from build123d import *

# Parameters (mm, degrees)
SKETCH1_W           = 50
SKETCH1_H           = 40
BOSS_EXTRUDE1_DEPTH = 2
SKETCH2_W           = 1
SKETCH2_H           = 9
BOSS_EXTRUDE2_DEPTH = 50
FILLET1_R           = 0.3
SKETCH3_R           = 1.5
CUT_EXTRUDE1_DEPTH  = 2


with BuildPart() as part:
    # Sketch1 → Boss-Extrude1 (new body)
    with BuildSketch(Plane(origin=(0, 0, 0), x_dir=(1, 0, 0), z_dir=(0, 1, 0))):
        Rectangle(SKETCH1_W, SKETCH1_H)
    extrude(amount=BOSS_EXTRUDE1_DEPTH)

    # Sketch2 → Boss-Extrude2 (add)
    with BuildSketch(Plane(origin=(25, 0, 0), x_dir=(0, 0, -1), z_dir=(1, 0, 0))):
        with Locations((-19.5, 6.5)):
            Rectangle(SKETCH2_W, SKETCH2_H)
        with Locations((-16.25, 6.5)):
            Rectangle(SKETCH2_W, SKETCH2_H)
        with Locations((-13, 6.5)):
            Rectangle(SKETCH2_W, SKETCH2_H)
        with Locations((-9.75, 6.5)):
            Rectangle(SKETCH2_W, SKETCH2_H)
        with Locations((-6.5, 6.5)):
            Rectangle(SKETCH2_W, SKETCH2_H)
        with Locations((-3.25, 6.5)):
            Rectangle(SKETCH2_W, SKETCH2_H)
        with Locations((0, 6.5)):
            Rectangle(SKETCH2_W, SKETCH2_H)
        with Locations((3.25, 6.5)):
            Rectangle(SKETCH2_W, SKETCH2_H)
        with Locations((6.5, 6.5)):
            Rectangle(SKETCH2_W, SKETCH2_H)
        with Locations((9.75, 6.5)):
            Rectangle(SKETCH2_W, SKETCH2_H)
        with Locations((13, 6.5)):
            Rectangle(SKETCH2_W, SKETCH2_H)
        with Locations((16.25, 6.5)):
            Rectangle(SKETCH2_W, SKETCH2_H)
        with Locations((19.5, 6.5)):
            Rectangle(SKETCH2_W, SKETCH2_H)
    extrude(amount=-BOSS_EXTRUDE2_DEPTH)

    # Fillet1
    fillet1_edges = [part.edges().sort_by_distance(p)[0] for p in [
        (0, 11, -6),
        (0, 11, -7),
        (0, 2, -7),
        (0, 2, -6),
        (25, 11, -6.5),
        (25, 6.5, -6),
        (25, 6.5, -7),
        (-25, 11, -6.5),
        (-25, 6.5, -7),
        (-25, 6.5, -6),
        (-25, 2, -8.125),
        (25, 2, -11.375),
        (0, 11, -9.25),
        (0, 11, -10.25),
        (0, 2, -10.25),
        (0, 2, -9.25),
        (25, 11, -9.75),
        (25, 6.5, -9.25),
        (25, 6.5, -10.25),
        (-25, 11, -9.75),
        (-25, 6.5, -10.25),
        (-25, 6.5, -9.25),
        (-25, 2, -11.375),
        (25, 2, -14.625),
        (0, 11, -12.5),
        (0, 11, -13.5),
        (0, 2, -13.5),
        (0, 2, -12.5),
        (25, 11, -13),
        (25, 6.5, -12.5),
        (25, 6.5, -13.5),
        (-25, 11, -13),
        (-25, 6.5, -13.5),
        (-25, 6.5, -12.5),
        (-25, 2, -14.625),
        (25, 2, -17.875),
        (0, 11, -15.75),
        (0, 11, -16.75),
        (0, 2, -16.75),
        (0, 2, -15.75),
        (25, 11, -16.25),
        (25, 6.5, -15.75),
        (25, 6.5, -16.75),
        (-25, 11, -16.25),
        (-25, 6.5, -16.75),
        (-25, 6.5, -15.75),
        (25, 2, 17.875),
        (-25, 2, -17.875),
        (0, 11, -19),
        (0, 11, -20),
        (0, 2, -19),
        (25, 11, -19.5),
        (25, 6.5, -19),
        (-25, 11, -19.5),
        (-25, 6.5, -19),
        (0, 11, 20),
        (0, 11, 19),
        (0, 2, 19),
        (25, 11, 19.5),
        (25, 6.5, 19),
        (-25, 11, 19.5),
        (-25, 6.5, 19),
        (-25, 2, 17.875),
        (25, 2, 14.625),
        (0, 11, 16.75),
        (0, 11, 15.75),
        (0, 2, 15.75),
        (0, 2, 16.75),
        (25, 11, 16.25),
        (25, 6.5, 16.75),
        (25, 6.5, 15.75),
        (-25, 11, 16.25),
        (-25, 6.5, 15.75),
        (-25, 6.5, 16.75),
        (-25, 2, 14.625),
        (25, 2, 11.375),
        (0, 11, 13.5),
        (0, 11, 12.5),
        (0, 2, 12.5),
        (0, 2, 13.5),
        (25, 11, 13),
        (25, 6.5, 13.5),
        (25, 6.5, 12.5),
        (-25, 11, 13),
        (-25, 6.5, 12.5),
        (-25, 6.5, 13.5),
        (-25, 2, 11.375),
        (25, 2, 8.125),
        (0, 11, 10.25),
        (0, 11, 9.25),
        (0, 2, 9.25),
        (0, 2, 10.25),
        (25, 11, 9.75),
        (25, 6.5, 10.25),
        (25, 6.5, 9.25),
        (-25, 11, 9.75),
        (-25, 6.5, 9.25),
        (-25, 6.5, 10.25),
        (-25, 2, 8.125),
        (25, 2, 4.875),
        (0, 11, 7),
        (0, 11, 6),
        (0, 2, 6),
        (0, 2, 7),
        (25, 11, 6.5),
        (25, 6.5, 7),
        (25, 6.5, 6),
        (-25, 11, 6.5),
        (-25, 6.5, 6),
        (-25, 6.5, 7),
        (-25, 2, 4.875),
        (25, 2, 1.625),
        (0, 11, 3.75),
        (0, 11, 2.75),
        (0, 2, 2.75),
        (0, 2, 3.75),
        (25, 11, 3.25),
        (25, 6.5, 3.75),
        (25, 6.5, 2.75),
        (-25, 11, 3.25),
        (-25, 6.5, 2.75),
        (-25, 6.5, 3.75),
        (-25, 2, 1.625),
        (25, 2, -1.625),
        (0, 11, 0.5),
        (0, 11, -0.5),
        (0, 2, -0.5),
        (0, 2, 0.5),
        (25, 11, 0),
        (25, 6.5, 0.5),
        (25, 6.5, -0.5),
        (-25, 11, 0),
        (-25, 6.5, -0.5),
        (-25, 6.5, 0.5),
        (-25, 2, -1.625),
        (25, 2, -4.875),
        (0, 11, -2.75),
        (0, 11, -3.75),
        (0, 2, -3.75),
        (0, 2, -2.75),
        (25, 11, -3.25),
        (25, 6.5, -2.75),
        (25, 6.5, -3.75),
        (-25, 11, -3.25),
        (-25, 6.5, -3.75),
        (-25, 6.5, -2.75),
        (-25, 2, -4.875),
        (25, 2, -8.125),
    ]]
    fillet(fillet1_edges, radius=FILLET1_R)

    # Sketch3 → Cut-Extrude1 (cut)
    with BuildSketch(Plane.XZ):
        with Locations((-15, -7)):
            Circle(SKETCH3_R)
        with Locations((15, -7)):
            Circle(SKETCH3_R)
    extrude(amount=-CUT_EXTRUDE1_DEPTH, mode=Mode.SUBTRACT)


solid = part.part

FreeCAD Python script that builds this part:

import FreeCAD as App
import Part
import Sketcher
from FreeCAD import Vector
Q = App.Units.Quantity


def edges_at(feature, points):
    """Names of the edges that pass closest to the given points."""
    edges = feature.Shape.Edges
    near = lambda p: min(range(len(edges)), key=lambda i: edges[i].distToShape(Part.Vertex(*p))[0])
    return sorted({f"Edge{near(p) + 1}" for p in points})

doc = App.newDocument("Part")
body = doc.addObject("PartDesign::Body", "Body")

# Sketch on XZ plane
sketch1 = body.newObject("Sketcher::SketchObject", "Sketch")
sketch1.AttachmentSupport = (doc.getObject("XZ_Plane"), [""])
sketch1.MapMode = "FlatFace"
sketch1.addGeometry([
    Part.LineSegment(Vector(-25, -20, 0), Vector(-25, 20, 0)),
    Part.LineSegment(Vector(-25, 20, 0), Vector(25, 20, 0)),
    Part.LineSegment(Vector(25, 20, 0), Vector(25, -20, 0)),
    Part.LineSegment(Vector(25, -20, 0), Vector(-25, -20, 0)),
], False)
sketch1.addConstraint([
    Sketcher.Constraint("Coincident", 0, 2, 1, 1),
    Sketcher.Constraint("Coincident", 1, 2, 2, 1),
    Sketcher.Constraint("Coincident", 2, 2, 3, 1),
    Sketcher.Constraint("Coincident", 3, 2, 0, 1),
    Sketcher.Constraint("Vertical", 0),
    Sketcher.Constraint("Horizontal", 1),
    Sketcher.Constraint("Vertical", 2),
    Sketcher.Constraint("Horizontal", 3),
    Sketcher.Constraint("Symmetric", 0, 2, 2, 2, -1, 1),
    Sketcher.Constraint("DistanceX", 1, 1, 1, 2, Q("50 mm")),
    Sketcher.Constraint("DistanceY", 0, 1, 0, 2, Q("40 mm")),
])
pad1 = body.newObject("PartDesign::Pad", "Pad")
pad1.Profile = sketch1
pad1.Length = 2
pad1.Reversed = True

# Sketch on YZ plane
sketch2 = body.newObject("Sketcher::SketchObject", "Sketch001")
sketch2.AttachmentSupport = (doc.getObject("YZ_Plane"), [""])
sketch2.MapMode = "FlatFace"
sketch2.AttachmentOffset = App.Placement(Vector(0, 0, 25), App.Rotation())
sketch2.addGeometry([
    Part.LineSegment(Vector(11, 20, 0), Vector(2, 20, 0)),  # 0
    Part.LineSegment(Vector(2, 20, 0), Vector(2, 19, 0)),  # 1
    Part.LineSegment(Vector(2, 19, 0), Vector(11, 19, 0)),  # 2
    Part.LineSegment(Vector(11, 19, 0), Vector(11, 20, 0)),  # 3
    Part.LineSegment(Vector(11, 16.75, 0), Vector(2, 16.75, 0)),  # 4
    Part.LineSegment(Vector(2, 16.75, 0), Vector(2, 15.75, 0)),  # 5
    Part.LineSegment(Vector(2, 15.75, 0), Vector(11, 15.75, 0)),  # 6
    Part.LineSegment(Vector(11, 15.75, 0), Vector(11, 16.75, 0)),  # 7
    Part.LineSegment(Vector(11, 13.5, 0), Vector(2, 13.5, 0)),  # 8
    Part.LineSegment(Vector(2, 13.5, 0), Vector(2, 12.5, 0)),  # 9
    Part.LineSegment(Vector(2, 12.5, 0), Vector(11, 12.5, 0)),  # 10
    Part.LineSegment(Vector(11, 12.5, 0), Vector(11, 13.5, 0)),  # 11
    Part.LineSegment(Vector(11, 10.25, 0), Vector(2, 10.25, 0)),  # 12
    Part.LineSegment(Vector(2, 10.25, 0), Vector(2, 9.25, 0)),  # 13
    Part.LineSegment(Vector(2, 9.25, 0), Vector(11, 9.25, 0)),  # 14
    Part.LineSegment(Vector(11, 9.25, 0), Vector(11, 10.25, 0)),  # 15
    Part.LineSegment(Vector(11, 7, 0), Vector(2, 7, 0)),  # 16
    Part.LineSegment(Vector(2, 7, 0), Vector(2, 6, 0)),  # 17
    Part.LineSegment(Vector(2, 6, 0), Vector(11, 6, 0)),  # 18
    Part.LineSegment(Vector(11, 6, 0), Vector(11, 7, 0)),  # 19
    Part.LineSegment(Vector(11, 3.75, 0), Vector(2, 3.75, 0)),  # 20
    Part.LineSegment(Vector(2, 3.75, 0), Vector(2, 2.75, 0)),  # 21
    Part.LineSegment(Vector(2, 2.75, 0), Vector(11, 2.75, 0)),  # 22
    Part.LineSegment(Vector(11, 2.75, 0), Vector(11, 3.75, 0)),  # 23
    Part.LineSegment(Vector(11, 0.5, 0), Vector(2, 0.5, 0)),  # 24
    Part.LineSegment(Vector(2, 0.5, 0), Vector(2, -0.5, 0)),  # 25
    Part.LineSegment(Vector(2, -0.5, 0), Vector(11, -0.5, 0)),  # 26
    Part.LineSegment(Vector(11, -0.5, 0), Vector(11, 0.5, 0)),  # 27
    Part.LineSegment(Vector(11, -2.75, 0), Vector(2, -2.75, 0)),  # 28
    Part.LineSegment(Vector(2, -2.75, 0), Vector(2, -3.75, 0)),  # 29
    Part.LineSegment(Vector(2, -3.75, 0), Vector(11, -3.75, 0)),  # 30
    Part.LineSegment(Vector(11, -3.75, 0), Vector(11, -2.75, 0)),  # 31
    Part.LineSegment(Vector(11, -6, 0), Vector(2, -6, 0)),  # 32
    Part.LineSegment(Vector(2, -6, 0), Vector(2, -7, 0)),  # 33
    Part.LineSegment(Vector(2, -7, 0), Vector(11, -7, 0)),  # 34
    Part.LineSegment(Vector(11, -7, 0), Vector(11, -6, 0)),  # 35
    Part.LineSegment(Vector(11, -9.25, 0), Vector(2, -9.25, 0)),  # 36
    Part.LineSegment(Vector(2, -9.25, 0), Vector(2, -10.25, 0)),  # 37
    Part.LineSegment(Vector(2, -10.25, 0), Vector(11, -10.25, 0)),  # 38
    Part.LineSegment(Vector(11, -10.25, 0), Vector(11, -9.25, 0)),  # 39
    Part.LineSegment(Vector(11, -12.5, 0), Vector(2, -12.5, 0)),  # 40
    Part.LineSegment(Vector(2, -12.5, 0), Vector(2, -13.5, 0)),  # 41
    Part.LineSegment(Vector(2, -13.5, 0), Vector(11, -13.5, 0)),  # 42
    Part.LineSegment(Vector(11, -13.5, 0), Vector(11, -12.5, 0)),  # 43
    Part.LineSegment(Vector(11, -15.75, 0), Vector(2, -15.75, 0)),  # 44
    Part.LineSegment(Vector(2, -15.75, 0), Vector(2, -16.75, 0)),  # 45
    Part.LineSegment(Vector(2, -16.75, 0), Vector(11, -16.75, 0)),  # 46
    Part.LineSegment(Vector(11, -16.75, 0), Vector(11, -15.75, 0)),  # 47
    Part.LineSegment(Vector(11, -19, 0), Vector(2, -19, 0)),  # 48
    Part.LineSegment(Vector(2, -19, 0), Vector(2, -20, 0)),  # 49
    Part.LineSegment(Vector(2, -20, 0), Vector(11, -20, 0)),  # 50
    Part.LineSegment(Vector(11, -20, 0), Vector(11, -19, 0)),  # 51
], False)
sketch2.addConstraint([
    Sketcher.Constraint("Coincident", 0, 2, 1, 1),
    Sketcher.Constraint("Coincident", 1, 2, 2, 1),
    Sketcher.Constraint("Coincident", 2, 2, 3, 1),
    Sketcher.Constraint("Coincident", 3, 2, 0, 1),
    Sketcher.Constraint("Coincident", 4, 2, 5, 1),
    Sketcher.Constraint("Coincident", 5, 2, 6, 1),
    Sketcher.Constraint("Coincident", 6, 2, 7, 1),
    Sketcher.Constraint("Coincident", 7, 2, 4, 1),
    Sketcher.Constraint("Coincident", 8, 2, 9, 1),
    Sketcher.Constraint("Coincident", 9, 2, 10, 1),
    Sketcher.Constraint("Coincident", 10, 2, 11, 1),
    Sketcher.Constraint("Coincident", 11, 2, 8, 1),
    Sketcher.Constraint("Coincident", 12, 2, 13, 1),
    Sketcher.Constraint("Coincident", 13, 2, 14, 1),
    Sketcher.Constraint("Coincident", 14, 2, 15, 1),
    Sketcher.Constraint("Coincident", 15, 2, 12, 1),
    Sketcher.Constraint("Coincident", 16, 2, 17, 1),
    Sketcher.Constraint("Coincident", 17, 2, 18, 1),
    Sketcher.Constraint("Coincident", 18, 2, 19, 1),
    Sketcher.Constraint("Coincident", 19, 2, 16, 1),
    Sketcher.Constraint("Coincident", 20, 2, 21, 1),
    Sketcher.Constraint("Coincident", 21, 2, 22, 1),
    Sketcher.Constraint("Coincident", 22, 2, 23, 1),
    Sketcher.Constraint("Coincident", 23, 2, 20, 1),
    Sketcher.Constraint("Coincident", 24, 2, 25, 1),
    Sketcher.Constraint("Coincident", 25, 2, 26, 1),
    Sketcher.Constraint("Coincident", 26, 2, 27, 1),
    Sketcher.Constraint("Coincident", 27, 2, 24, 1),
    Sketcher.Constraint("Coincident", 28, 2, 29, 1),
    Sketcher.Constraint("Coincident", 29, 2, 30, 1),
    Sketcher.Constraint("Coincident", 30, 2, 31, 1),
    Sketcher.Constraint("Coincident", 31, 2, 28, 1),
    Sketcher.Constraint("Coincident", 32, 2, 33, 1),
    Sketcher.Constraint("Coincident", 33, 2, 34, 1),
    Sketcher.Constraint("Coincident", 34, 2, 35, 1),
    Sketcher.Constraint("Coincident", 35, 2, 32, 1),
    Sketcher.Constraint("Coincident", 36, 2, 37, 1),
    Sketcher.Constraint("Coincident", 37, 2, 38, 1),
    Sketcher.Constraint("Coincident", 38, 2, 39, 1),
    Sketcher.Constraint("Coincident", 39, 2, 36, 1),
    Sketcher.Constraint("Coincident", 40, 2, 41, 1),
    Sketcher.Constraint("Coincident", 41, 2, 42, 1),
    Sketcher.Constraint("Coincident", 42, 2, 43, 1),
    Sketcher.Constraint("Coincident", 43, 2, 40, 1),
    Sketcher.Constraint("Coincident", 44, 2, 45, 1),
    Sketcher.Constraint("Coincident", 45, 2, 46, 1),
    Sketcher.Constraint("Coincident", 46, 2, 47, 1),
    Sketcher.Constraint("Coincident", 47, 2, 44, 1),
    Sketcher.Constraint("Coincident", 48, 2, 49, 1),
    Sketcher.Constraint("Coincident", 49, 2, 50, 1),
    Sketcher.Constraint("Coincident", 50, 2, 51, 1),
    Sketcher.Constraint("Coincident", 51, 2, 48, 1),
    Sketcher.Constraint("Horizontal", 0),
    Sketcher.Constraint("Vertical", 1),
    Sketcher.Constraint("Horizontal", 2),
    Sketcher.Constraint("Vertical", 3),
    Sketcher.Constraint("Horizontal", 4),
    Sketcher.Constraint("Vertical", 5),
    Sketcher.Constraint("Horizontal", 6),
    Sketcher.Constraint("Vertical", 7),
    Sketcher.Constraint("Horizontal", 8),
    Sketcher.Constraint("Vertical", 9),
    Sketcher.Constraint("Horizontal", 10),
    Sketcher.Constraint("Vertical", 11),
    Sketcher.Constraint("Horizontal", 12),
    Sketcher.Constraint("Vertical", 13),
    Sketcher.Constraint("Horizontal", 14),
    Sketcher.Constraint("Vertical", 15),
    Sketcher.Constraint("Horizontal", 16),
    Sketcher.Constraint("Vertical", 17),
    Sketcher.Constraint("Horizontal", 18),
    Sketcher.Constraint("Vertical", 19),
    Sketcher.Constraint("Horizontal", 20),
    Sketcher.Constraint("Vertical", 21),
    Sketcher.Constraint("Horizontal", 22),
    Sketcher.Constraint("Vertical", 23),
    Sketcher.Constraint("Horizontal", 24),
    Sketcher.Constraint("Vertical", 25),
    Sketcher.Constraint("Horizontal", 26),
    Sketcher.Constraint("Vertical", 27),
    Sketcher.Constraint("Horizontal", 28),
    Sketcher.Constraint("Vertical", 29),
    Sketcher.Constraint("Horizontal", 30),
    Sketcher.Constraint("Vertical", 31),
    Sketcher.Constraint("Horizontal", 32),
    Sketcher.Constraint("Vertical", 33),
    Sketcher.Constraint("Horizontal", 34),
    Sketcher.Constraint("Vertical", 35),
    Sketcher.Constraint("Horizontal", 36),
    Sketcher.Constraint("Vertical", 37),
    Sketcher.Constraint("Horizontal", 38),
    Sketcher.Constraint("Vertical", 39),
    Sketcher.Constraint("Horizontal", 40),
    Sketcher.Constraint("Vertical", 41),
    Sketcher.Constraint("Horizontal", 42),
    Sketcher.Constraint("Vertical", 43),
    Sketcher.Constraint("Horizontal", 44),
    Sketcher.Constraint("Vertical", 45),
    Sketcher.Constraint("Horizontal", 46),
    Sketcher.Constraint("Vertical", 47),
    Sketcher.Constraint("Horizontal", 48),
    Sketcher.Constraint("Vertical", 49),
    Sketcher.Constraint("Horizontal", 50),
    Sketcher.Constraint("Vertical", 51),
    Sketcher.Constraint("Symmetric", 21, 2, 28, 2, -1),
    Sketcher.Constraint("Symmetric", 23, 2, 30, 2, -1),
    Sketcher.Constraint("Symmetric", 17, 2, 32, 2, -1),
    Sketcher.Constraint("Symmetric", 19, 2, 34, 2, -1),
    Sketcher.Constraint("Symmetric", 13, 2, 36, 2, -1),
    Sketcher.Constraint("Symmetric", 15, 2, 38, 2, -1),
    Sketcher.Constraint("Symmetric", 9, 2, 40, 2, -1),
    Sketcher.Constraint("Symmetric", 11, 2, 42, 2, -1),
    Sketcher.Constraint("Symmetric", 5, 2, 44, 2, -1),
    Sketcher.Constraint("Symmetric", 7, 2, 46, 2, -1),
    Sketcher.Constraint("Symmetric", 1, 2, 48, 2, -1),
    Sketcher.Constraint("Symmetric", 3, 2, 50, 2, -1),
    Sketcher.Constraint("Vertical", 1, 2, 4, 2),
    Sketcher.Constraint("Vertical", 3, 2, 6, 2),
    Sketcher.Constraint("Vertical", 5, 2, 8, 2),
    Sketcher.Constraint("Vertical", 7, 2, 10, 2),
    Sketcher.Constraint("Vertical", 9, 2, 12, 2),
    Sketcher.Constraint("Vertical", 11, 2, 14, 2),
    Sketcher.Constraint("Vertical", 13, 2, 16, 2),
    Sketcher.Constraint("Vertical", 15, 2, 18, 2),
    Sketcher.Constraint("Vertical", 17, 2, 20, 2),
    Sketcher.Constraint("Vertical", 19, 2, 22, 2),
    Sketcher.Constraint("Vertical", 21, 2, 24, 2),
    Sketcher.Constraint("Vertical", 23, 2, 26, 2),
    Sketcher.Constraint("Equal", 3, 5),
    Sketcher.Constraint("Equal", 7, 9),
    Sketcher.Constraint("Equal", 11, 13),
    Sketcher.Constraint("Equal", 15, 17),
    Sketcher.Constraint("Equal", 19, 21),
    Sketcher.Constraint("Equal", 23, 25),
    Sketcher.Constraint("DistanceX", 0, 2, 0, 1, Q("9 mm")),
    Sketcher.Constraint("DistanceY", 1, 2, 1, 1, Q("1 mm")),
    Sketcher.Constraint("DistanceX", -1, 1, 0, 2, Q("2 mm")),
    Sketcher.Constraint("DistanceY", -1, 1, 0, 2, Q("20 mm")),
    Sketcher.Constraint("DistanceY", -1, 1, 16, 2, Q("7 mm")),
    Sketcher.Constraint("DistanceY", -1, 1, 8, 2, Q("13.5 mm")),
    Sketcher.Constraint("DistanceY", -1, 1, 24, 2, Q("0.5 mm")),
    Sketcher.Constraint("DistanceY", 12, 2, 5, 2, Q("5.5 mm")),
    Sketcher.Constraint("DistanceY", 20, 2, 13, 2, Q("5.5 mm")),
    Sketcher.Constraint("DistanceY", 28, 2, 21, 2, Q("5.5 mm")),
])
pad2 = body.newObject("PartDesign::Pad", "Pad001")
pad2.Profile = sketch2
pad2.Length = 50
pad2.Reversed = True
doc.recompute()

fillet = body.newObject("PartDesign::Fillet", "Fillet")
fillet.Base = (pad2, edges_at(pad2, [
    (0, 11, -6),
    (0, 11, -7),
    (0, 2, -7),
    (0, 2, -6),
    (25, 11, -6.5),
    (25, 6.5, -6),
    (25, 6.5, -7),
    (-25, 11, -6.5),
    (-25, 6.5, -7),
    (-25, 6.5, -6),
    (-25, 2, -8.125),
    (25, 2, -11.375),
    (0, 11, -9.25),
    (0, 11, -10.25),
    (0, 2, -10.25),
    (0, 2, -9.25),
    (25, 11, -9.75),
    (25, 6.5, -9.25),
    (25, 6.5, -10.25),
    (-25, 11, -9.75),
    (-25, 6.5, -10.25),
    (-25, 6.5, -9.25),
    (-25, 2, -11.375),
    (25, 2, -14.625),
    (0, 11, -12.5),
    (0, 11, -13.5),
    (0, 2, -13.5),
    (0, 2, -12.5),
    (25, 11, -13),
    (25, 6.5, -12.5),
    (25, 6.5, -13.5),
    (-25, 11, -13),
    (-25, 6.5, -13.5),
    (-25, 6.5, -12.5),
    (-25, 2, -14.625),
    (25, 2, -17.875),
    (0, 11, -15.75),
    (0, 11, -16.75),
    (0, 2, -16.75),
    (0, 2, -15.75),
    (25, 11, -16.25),
    (25, 6.5, -15.75),
    (25, 6.5, -16.75),
    (-25, 11, -16.25),
    (-25, 6.5, -16.75),
    (-25, 6.5, -15.75),
    (25, 2, 17.875),
    (-25, 2, -17.875),
    (0, 11, -19),
    (0, 11, -20),
    (0, 2, -19),
    (25, 11, -19.5),
    (25, 6.5, -19),
    (-25, 11, -19.5),
    (-25, 6.5, -19),
    (0, 11, 20),
    (0, 11, 19),
    (0, 2, 19),
    (25, 11, 19.5),
    (25, 6.5, 19),
    (-25, 11, 19.5),
    (-25, 6.5, 19),
    (-25, 2, 17.875),
    (25, 2, 14.625),
    (0, 11, 16.75),
    (0, 11, 15.75),
    (0, 2, 15.75),
    (0, 2, 16.75),
    (25, 11, 16.25),
    (25, 6.5, 16.75),
    (25, 6.5, 15.75),
    (-25, 11, 16.25),
    (-25, 6.5, 15.75),
    (-25, 6.5, 16.75),
    (-25, 2, 14.625),
    (25, 2, 11.375),
    (0, 11, 13.5),
    (0, 11, 12.5),
    (0, 2, 12.5),
    (0, 2, 13.5),
    (25, 11, 13),
    (25, 6.5, 13.5),
    (25, 6.5, 12.5),
    (-25, 11, 13),
    (-25, 6.5, 12.5),
    (-25, 6.5, 13.5),
    (-25, 2, 11.375),
    (25, 2, 8.125),
    (0, 11, 10.25),
    (0, 11, 9.25),
    (0, 2, 9.25),
    (0, 2, 10.25),
    (25, 11, 9.75),
    (25, 6.5, 10.25),
    (25, 6.5, 9.25),
    (-25, 11, 9.75),
    (-25, 6.5, 9.25),
    (-25, 6.5, 10.25),
    (-25, 2, 8.125),
    (25, 2, 4.875),
    (0, 11, 7),
    (0, 11, 6),
    (0, 2, 6),
    (0, 2, 7),
    (25, 11, 6.5),
    (25, 6.5, 7),
    (25, 6.5, 6),
    (-25, 11, 6.5),
    (-25, 6.5, 6),
    (-25, 6.5, 7),
    (-25, 2, 4.875),
    (25, 2, 1.625),
    (0, 11, 3.75),
    (0, 11, 2.75),
    (0, 2, 2.75),
    (0, 2, 3.75),
    (25, 11, 3.25),
    (25, 6.5, 3.75),
    (25, 6.5, 2.75),
    (-25, 11, 3.25),
    (-25, 6.5, 2.75),
    (-25, 6.5, 3.75),
    (-25, 2, 1.625),
    (25, 2, -1.625),
    (0, 11, 0.5),
    (0, 11, -0.5),
    (0, 2, -0.5),
    (0, 2, 0.5),
    (25, 11, 0),
    (25, 6.5, 0.5),
    (25, 6.5, -0.5),
    (-25, 11, 0),
    (-25, 6.5, -0.5),
    (-25, 6.5, 0.5),
    (-25, 2, -1.625),
    (25, 2, -4.875),
    (0, 11, -2.75),
    (0, 11, -3.75),
    (0, 2, -3.75),
    (0, 2, -2.75),
    (25, 11, -3.25),
    (25, 6.5, -2.75),
    (25, 6.5, -3.75),
    (-25, 11, -3.25),
    (-25, 6.5, -3.75),
    (-25, 6.5, -2.75),
    (-25, 2, -4.875),
    (25, 2, -8.125),
]))
fillet.Radius = 0.3

# Sketch on XZ plane
sketch3 = body.newObject("Sketcher::SketchObject", "Sketch002")
sketch3.AttachmentSupport = (doc.getObject("XZ_Plane"), [""])
sketch3.MapMode = "FlatFace"
sketch3.addGeometry([
    Part.Circle(Vector(-15, -7, 0), Vector(0, 0, 1), 1.5),
    Part.Circle(Vector(15, -7, 0), Vector(0, 0, 1), 1.5),
], False)
sketch3.addConstraint([
    Sketcher.Constraint("Equal", 0, 1),
    Sketcher.Constraint("Symmetric", 0, 3, 1, 3, -2),
    Sketcher.Constraint("Diameter", 0, Q("3 mm")),
    Sketcher.Constraint("DistanceX", 0, 3, -1, 1, Q("15 mm")),
    Sketcher.Constraint("DistanceY", 0, 3, -1, 1, Q("7 mm")),
])
pocket1 = body.newObject("PartDesign::Pocket", "Pocket")
pocket1.Profile = sketch3
pocket1.Length = 2

doc.recompute()
